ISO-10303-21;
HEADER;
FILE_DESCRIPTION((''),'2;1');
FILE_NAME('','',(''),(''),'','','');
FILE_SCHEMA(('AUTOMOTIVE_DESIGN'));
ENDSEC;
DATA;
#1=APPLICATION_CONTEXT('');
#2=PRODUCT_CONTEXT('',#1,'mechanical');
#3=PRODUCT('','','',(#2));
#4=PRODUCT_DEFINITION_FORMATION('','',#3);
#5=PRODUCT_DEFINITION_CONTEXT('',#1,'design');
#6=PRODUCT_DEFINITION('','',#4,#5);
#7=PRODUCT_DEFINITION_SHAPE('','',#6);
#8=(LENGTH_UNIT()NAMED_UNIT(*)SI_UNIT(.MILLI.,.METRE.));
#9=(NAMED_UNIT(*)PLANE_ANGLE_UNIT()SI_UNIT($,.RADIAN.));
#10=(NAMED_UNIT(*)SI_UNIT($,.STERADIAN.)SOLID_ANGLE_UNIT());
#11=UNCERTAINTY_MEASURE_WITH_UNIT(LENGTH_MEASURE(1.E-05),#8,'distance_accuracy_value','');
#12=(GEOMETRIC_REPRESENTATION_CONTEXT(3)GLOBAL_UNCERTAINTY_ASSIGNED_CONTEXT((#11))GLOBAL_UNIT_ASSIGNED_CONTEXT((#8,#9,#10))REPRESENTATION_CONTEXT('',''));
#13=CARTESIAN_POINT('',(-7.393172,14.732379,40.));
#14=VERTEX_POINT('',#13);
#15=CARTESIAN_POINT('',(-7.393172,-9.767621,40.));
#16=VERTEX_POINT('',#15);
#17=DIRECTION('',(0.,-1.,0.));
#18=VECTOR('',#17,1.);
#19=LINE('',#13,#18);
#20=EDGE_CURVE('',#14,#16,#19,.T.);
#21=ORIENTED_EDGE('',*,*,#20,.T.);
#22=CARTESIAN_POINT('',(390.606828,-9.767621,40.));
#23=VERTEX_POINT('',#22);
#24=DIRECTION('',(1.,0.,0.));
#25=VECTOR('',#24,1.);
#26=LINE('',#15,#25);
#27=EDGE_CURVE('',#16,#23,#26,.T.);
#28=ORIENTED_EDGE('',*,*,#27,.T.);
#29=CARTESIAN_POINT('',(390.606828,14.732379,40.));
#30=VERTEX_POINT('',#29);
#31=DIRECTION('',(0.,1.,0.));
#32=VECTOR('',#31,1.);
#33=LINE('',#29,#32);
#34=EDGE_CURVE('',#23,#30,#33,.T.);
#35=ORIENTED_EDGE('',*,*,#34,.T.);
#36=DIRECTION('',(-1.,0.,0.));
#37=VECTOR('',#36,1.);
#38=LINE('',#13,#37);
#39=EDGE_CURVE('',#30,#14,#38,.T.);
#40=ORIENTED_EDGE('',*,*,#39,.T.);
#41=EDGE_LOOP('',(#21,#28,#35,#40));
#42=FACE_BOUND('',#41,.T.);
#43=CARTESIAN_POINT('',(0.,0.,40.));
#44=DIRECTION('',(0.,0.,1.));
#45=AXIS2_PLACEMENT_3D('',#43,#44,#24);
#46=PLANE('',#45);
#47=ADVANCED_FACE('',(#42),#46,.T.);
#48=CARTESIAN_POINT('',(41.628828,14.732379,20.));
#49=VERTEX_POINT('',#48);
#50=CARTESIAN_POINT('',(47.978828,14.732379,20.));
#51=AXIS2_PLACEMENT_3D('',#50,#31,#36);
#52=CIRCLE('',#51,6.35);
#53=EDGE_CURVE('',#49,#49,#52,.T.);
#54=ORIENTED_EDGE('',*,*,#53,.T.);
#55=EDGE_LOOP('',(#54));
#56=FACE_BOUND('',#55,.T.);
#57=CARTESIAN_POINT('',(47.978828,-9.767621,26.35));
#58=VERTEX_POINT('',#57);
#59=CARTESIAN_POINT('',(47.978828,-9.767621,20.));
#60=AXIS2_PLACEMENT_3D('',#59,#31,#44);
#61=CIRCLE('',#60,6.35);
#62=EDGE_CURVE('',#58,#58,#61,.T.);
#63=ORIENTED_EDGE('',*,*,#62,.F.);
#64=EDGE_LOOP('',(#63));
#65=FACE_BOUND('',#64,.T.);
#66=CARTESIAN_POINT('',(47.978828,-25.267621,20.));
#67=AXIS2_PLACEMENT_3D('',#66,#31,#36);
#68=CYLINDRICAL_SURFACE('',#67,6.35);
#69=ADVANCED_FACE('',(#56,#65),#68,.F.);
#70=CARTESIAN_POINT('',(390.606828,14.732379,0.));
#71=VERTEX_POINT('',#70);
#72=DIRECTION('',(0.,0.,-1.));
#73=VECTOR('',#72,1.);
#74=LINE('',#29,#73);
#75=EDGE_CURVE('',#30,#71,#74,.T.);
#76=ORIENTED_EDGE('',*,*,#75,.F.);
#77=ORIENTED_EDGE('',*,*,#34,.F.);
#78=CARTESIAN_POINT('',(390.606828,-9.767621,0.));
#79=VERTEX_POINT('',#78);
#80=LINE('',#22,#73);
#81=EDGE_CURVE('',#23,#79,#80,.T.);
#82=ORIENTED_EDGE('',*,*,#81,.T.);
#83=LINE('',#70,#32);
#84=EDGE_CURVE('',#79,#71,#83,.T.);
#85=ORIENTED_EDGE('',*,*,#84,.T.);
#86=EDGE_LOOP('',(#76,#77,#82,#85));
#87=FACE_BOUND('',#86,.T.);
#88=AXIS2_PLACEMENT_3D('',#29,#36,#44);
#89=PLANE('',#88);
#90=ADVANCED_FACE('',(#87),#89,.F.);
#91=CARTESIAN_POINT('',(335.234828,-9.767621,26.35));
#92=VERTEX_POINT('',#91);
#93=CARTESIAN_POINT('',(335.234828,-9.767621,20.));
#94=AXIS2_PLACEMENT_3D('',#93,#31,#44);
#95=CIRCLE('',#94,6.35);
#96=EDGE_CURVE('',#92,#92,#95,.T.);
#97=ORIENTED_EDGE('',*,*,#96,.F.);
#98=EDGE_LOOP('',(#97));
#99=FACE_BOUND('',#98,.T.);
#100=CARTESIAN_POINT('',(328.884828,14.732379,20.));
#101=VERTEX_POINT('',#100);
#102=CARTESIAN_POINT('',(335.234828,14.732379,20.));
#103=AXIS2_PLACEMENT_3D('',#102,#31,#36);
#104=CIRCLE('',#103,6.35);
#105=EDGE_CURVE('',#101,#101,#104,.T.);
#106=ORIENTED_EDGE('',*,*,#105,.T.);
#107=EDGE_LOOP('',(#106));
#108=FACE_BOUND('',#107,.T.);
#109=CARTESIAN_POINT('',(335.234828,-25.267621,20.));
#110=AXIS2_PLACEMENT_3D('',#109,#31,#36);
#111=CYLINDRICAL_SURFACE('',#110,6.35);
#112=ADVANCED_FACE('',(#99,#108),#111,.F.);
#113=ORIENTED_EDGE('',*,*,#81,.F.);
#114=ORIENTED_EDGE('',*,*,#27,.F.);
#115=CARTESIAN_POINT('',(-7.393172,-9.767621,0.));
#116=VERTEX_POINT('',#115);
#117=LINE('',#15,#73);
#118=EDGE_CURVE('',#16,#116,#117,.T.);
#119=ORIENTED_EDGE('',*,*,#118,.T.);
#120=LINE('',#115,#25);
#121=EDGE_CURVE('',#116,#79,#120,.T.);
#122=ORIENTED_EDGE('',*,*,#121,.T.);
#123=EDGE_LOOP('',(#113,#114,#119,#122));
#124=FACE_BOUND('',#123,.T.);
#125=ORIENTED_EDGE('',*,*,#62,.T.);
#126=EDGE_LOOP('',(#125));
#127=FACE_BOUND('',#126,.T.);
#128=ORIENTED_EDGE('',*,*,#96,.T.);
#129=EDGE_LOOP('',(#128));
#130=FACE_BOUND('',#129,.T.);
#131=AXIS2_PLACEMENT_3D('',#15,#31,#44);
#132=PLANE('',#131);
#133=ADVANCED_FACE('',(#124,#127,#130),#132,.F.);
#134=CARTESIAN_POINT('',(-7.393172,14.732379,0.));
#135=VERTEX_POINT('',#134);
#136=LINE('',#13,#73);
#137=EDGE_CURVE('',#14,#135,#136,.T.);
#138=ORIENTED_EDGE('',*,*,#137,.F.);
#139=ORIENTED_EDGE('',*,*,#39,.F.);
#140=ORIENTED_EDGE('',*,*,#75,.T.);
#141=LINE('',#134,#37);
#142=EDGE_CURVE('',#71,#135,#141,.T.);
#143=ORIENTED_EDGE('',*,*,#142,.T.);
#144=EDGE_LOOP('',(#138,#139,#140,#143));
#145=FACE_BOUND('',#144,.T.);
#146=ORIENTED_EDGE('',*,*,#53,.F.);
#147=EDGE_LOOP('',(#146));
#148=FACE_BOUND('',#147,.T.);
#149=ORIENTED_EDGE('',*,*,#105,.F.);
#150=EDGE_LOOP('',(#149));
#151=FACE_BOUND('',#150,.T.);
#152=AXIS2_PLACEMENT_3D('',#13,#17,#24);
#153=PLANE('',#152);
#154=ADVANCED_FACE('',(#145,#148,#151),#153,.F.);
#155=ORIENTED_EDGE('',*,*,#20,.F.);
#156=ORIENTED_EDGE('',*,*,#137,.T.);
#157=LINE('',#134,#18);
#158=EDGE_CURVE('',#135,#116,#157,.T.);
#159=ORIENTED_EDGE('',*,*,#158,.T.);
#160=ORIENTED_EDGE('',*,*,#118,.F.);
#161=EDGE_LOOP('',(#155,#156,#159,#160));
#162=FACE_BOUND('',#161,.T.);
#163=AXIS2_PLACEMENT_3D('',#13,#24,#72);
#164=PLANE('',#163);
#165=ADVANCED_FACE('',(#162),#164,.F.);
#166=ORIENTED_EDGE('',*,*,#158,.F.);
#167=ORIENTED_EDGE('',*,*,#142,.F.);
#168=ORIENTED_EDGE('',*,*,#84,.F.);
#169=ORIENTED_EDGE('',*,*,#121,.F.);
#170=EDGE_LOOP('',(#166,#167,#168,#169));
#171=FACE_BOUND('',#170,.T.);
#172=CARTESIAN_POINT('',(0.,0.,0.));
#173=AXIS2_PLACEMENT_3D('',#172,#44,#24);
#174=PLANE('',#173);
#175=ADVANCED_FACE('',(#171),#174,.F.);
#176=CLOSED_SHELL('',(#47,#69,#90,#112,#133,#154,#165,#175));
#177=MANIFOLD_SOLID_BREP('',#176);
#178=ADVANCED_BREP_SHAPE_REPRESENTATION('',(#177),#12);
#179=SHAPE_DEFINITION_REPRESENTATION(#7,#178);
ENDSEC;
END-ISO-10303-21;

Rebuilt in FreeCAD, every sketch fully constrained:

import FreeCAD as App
import Part
import Sketcher

V = App.Vector


def add_polygon(sketch, points):
    """Adds a closed chain of lines whose ends are joined by coincident constraints."""
    first, n = sketch.GeometryCount, len(points)
    for a, b in zip(points, points[1:] + points[:1]):
        sketch.addGeometry(Part.LineSegment(App.Vector(*a, 0), App.Vector(*b, 0)), False)
    for i in range(n):
        sketch.addConstraint(Sketcher.Constraint("Coincident", first + i, 2, first + (i + 1) % n, 1))

doc = App.newDocument("Part")
body = doc.addObject("PartDesign::Body", "Body")

# Sketch on XY plane
sketch1 = body.newObject("Sketcher::SketchObject", "Sketch")
sketch1.AttachmentSupport = (doc.getObject("XY_Plane"), [""])
sketch1.MapMode = "FlatFace"
add_polygon(sketch1, [(-7.393172, 14.732379), (-7.393172, -9.767621), (390.606828, -9.767621), (390.606828, 14.732379)])  # lines 0-3
sketch1.addConstraint(Sketcher.Constraint("Vertical", 0))
sketch1.addConstraint(Sketcher.Constraint("Horizontal", 1))
sketch1.addConstraint(Sketcher.Constraint("Vertical", 2))
sketch1.addConstraint(Sketcher.Constraint("Horizontal", 3))
sketch1.addConstraint(Sketcher.Constraint("DistanceX", 1, 1, 1, 2, 398.0))
sketch1.addConstraint(Sketcher.Constraint("DistanceY", 0, 2, 0, 1, 24.5))
sketch1.addConstraint(Sketcher.Constraint("DistanceX", 0, 2, -1, 1, 7.393172))
sketch1.addConstraint(Sketcher.Constraint("DistanceY", 0, 2, -1, 1, 9.767621))
pad1 = body.newObject("PartDesign::Pad", "Pad")
pad1.Profile = sketch1
pad1.Length = 40

# Sketch on XZ plane
sketch2 = body.newObject("Sketcher::SketchObject", "Sketch001")
sketch2.AttachmentSupport = (doc.getObject("XZ_Plane"), [""])
sketch2.MapMode = "FlatFace"
sketch2.AttachmentOffset = App.Placement(V(0, 0, -14.732379), App.Rotation())
sketch2.addGeometry(Part.Circle(V(335.234828, 20, 0), V(0, 0, 1), 6.35), False)
sketch2.addGeometry(Part.Circle(V(47.978828, 20, 0), V(0, 0, 1), 6.35), False)
sketch2.addConstraint(Sketcher.Constraint("Equal", 0, 1))
sketch2.addConstraint(Sketcher.Constraint("Horizontal", 0, 3, 1, 3))
sketch2.addConstraint(Sketcher.Constraint("Diameter", 0, 12.7))
sketch2.addConstraint(Sketcher.Constraint("DistanceY", -1, 1, 0, 3, 20.0))
sketch2.addConstraint(Sketcher.Constraint("DistanceX", 1, 3, 0, 3, 287.256))
sketch2.addConstraint(Sketcher.Constraint("DistanceX", -1, 1, 0, 3, 335.234828))
pocket1 = body.newObject("PartDesign::Pocket", "Pocket")
pocket1.Profile = sketch2
pocket1.Length = 40
pocket1.Reversed = True

doc.recompute()
